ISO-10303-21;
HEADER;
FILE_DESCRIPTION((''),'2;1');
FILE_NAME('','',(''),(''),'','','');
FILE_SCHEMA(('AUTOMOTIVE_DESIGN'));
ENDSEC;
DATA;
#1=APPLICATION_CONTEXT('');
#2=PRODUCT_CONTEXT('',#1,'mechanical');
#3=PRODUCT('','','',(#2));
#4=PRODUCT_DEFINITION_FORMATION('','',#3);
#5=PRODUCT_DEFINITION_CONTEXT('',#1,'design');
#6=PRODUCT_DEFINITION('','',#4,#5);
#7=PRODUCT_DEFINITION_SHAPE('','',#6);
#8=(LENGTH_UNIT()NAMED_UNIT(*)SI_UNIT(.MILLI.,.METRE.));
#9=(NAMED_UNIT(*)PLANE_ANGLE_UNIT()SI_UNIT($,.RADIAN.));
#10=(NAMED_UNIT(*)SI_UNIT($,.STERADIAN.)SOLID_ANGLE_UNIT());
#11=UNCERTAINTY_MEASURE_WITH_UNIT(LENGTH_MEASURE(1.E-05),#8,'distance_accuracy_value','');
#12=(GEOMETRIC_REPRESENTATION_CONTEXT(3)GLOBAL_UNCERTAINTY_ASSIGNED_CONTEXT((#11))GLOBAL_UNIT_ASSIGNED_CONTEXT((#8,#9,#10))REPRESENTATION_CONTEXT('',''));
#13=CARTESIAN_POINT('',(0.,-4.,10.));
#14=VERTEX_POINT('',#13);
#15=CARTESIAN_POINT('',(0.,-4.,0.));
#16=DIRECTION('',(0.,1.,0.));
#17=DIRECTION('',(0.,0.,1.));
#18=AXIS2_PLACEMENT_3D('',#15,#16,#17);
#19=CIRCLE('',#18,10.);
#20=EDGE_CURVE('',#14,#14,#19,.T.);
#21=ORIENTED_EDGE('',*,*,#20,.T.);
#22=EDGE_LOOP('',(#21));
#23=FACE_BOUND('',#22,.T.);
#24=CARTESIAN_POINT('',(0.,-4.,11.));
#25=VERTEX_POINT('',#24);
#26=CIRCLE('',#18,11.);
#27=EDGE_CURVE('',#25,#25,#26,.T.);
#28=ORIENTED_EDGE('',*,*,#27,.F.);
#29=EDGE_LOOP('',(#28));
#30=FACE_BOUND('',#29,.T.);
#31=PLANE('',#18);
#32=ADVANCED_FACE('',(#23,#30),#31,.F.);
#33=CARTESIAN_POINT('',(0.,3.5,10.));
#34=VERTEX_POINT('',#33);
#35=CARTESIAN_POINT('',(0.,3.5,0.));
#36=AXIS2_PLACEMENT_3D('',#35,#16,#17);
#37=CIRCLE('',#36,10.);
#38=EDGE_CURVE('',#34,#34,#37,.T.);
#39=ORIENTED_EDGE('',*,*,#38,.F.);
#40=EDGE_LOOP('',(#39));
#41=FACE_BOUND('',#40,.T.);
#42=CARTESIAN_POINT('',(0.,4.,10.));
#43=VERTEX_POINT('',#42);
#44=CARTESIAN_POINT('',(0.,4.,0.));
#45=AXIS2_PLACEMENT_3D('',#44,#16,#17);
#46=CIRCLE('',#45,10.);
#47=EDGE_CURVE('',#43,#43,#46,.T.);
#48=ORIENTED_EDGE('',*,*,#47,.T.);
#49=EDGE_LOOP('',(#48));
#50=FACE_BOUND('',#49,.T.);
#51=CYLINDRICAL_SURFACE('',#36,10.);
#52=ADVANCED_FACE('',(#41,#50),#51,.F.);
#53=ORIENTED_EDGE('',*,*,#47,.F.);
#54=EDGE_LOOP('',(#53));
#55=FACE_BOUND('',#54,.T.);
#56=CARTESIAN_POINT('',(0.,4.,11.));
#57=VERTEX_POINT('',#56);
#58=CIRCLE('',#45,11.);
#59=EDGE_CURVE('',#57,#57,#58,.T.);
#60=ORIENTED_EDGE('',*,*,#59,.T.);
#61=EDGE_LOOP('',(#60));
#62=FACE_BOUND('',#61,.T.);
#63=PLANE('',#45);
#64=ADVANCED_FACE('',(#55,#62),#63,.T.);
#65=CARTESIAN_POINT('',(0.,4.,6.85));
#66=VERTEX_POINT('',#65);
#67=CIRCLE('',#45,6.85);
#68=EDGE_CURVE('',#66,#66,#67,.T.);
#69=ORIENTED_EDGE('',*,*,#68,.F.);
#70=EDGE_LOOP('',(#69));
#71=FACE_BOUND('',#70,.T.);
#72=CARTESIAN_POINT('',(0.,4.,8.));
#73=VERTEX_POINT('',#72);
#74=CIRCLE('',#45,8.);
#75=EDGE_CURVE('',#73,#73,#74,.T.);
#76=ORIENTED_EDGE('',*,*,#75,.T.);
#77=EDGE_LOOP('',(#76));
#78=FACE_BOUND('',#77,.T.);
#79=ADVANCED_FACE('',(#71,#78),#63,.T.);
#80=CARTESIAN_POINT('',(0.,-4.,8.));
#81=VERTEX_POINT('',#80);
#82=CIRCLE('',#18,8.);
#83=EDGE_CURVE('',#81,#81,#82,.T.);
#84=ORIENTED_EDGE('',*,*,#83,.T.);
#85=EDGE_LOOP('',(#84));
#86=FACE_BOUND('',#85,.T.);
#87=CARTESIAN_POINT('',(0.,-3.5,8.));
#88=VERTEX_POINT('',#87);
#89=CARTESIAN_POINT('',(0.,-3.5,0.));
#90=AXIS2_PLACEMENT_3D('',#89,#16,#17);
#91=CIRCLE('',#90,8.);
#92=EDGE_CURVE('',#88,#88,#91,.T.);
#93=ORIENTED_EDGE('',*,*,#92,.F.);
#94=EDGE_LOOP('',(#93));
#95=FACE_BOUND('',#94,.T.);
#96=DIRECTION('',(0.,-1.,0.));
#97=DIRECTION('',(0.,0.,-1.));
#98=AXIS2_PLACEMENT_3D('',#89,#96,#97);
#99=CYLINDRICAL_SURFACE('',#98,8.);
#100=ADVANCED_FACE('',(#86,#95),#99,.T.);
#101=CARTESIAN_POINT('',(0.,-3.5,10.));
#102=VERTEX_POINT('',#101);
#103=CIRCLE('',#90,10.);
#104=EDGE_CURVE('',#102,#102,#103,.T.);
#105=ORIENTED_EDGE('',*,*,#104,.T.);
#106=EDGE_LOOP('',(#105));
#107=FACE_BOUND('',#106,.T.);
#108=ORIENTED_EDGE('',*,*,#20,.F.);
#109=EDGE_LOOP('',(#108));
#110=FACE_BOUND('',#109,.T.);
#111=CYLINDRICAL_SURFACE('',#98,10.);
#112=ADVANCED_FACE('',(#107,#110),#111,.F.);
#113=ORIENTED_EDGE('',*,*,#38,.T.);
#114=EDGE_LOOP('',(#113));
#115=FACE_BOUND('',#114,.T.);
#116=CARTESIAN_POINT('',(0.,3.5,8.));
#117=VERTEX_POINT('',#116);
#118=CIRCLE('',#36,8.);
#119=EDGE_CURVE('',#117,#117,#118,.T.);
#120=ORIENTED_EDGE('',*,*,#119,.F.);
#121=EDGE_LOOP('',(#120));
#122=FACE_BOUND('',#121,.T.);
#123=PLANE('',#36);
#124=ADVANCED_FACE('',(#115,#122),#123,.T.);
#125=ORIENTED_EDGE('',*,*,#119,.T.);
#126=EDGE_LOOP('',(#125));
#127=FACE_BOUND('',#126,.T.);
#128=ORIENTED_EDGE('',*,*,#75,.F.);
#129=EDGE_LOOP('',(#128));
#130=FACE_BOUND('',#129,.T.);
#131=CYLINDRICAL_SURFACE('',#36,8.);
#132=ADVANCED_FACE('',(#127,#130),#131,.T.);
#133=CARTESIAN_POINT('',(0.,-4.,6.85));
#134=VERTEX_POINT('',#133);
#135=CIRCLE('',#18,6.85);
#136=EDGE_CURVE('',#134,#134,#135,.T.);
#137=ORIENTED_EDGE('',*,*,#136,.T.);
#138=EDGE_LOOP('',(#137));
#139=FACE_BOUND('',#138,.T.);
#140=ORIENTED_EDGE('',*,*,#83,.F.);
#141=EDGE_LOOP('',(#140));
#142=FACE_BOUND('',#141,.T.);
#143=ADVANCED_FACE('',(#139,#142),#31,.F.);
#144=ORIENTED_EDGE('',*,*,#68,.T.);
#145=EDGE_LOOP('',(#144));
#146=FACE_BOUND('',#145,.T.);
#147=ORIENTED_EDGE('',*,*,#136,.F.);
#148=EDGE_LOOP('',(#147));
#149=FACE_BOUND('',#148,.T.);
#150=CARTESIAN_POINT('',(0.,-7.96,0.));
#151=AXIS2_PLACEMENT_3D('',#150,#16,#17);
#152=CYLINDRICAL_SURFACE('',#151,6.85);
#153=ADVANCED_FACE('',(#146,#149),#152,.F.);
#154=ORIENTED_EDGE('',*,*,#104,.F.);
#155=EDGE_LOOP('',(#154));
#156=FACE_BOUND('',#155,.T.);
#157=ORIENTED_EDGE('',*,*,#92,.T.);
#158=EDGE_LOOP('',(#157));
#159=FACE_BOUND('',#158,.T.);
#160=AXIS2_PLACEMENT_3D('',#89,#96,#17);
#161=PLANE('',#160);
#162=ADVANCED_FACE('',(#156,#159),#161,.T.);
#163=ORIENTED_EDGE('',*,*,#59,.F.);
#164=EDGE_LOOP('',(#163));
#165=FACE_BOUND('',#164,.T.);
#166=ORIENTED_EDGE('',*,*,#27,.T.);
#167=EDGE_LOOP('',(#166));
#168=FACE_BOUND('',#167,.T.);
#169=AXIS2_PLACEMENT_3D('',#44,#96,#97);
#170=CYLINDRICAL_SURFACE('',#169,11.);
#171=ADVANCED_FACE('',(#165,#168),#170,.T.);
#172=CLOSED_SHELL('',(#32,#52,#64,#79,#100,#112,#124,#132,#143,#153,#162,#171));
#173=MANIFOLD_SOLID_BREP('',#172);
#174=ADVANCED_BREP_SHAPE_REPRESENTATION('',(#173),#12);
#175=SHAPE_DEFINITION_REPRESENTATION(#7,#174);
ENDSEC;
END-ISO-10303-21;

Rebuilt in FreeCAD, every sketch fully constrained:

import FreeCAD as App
import Part
import Sketcher
Q = App.Units.Quantity

doc = App.newDocument("Part")
body = doc.addObject("PartDesign::Body", "Body")

sketch1 = body.newObject("Sketcher::SketchObject", "Sketch")
sketch1.AttachmentSupport = (doc.getObject("XZ_Plane"), [""])
sketch1.MapMode = "FlatFace"
sketch1.addGeometry(Part.Circle(App.Vector(0, 0, 0), App.Vector(0, 0, 1), 11), False)
sketch1.addConstraint([
    Sketcher.Constraint("Coincident", 0, 3, -1, 1),
    Sketcher.Constraint("Diameter", 0, Q("22 mm")),
])
pad1 = body.newObject("PartDesign::Pad", "Pad")
pad1.Profile = sketch1
pad1.Length = 8
pad1.Midplane = True

sketch2 = body.newObject("Sketcher::SketchObject", "Sketch001")
sketch2.AttachmentSupport = (doc.getObject("XZ_Plane"), [""])
sketch2.MapMode = "FlatFace"
sketch2.AttachmentOffset = App.Placement(App.Vector(0, 0, -4), App.Rotation())
sketch2.addGeometry(Part.Circle(App.Vector(0, 0, 0), App.Vector(0, 0, 1), 7), False)
sketch2.addConstraint([
    Sketcher.Constraint("Coincident", 0, 3, -1, 1),
    Sketcher.Constraint("Diameter", 0, Q("13.7 mm")),
])
pocket1 = body.newObject("PartDesign::Pocket", "Pocket")
pocket1.Profile = sketch2
pocket1.Length = 11.96
pocket1.Reversed = True

sketch3 = body.newObject("Sketcher::SketchObject", "Sketch002")
sketch3.AttachmentSupport = (doc.getObject("XZ_Plane"), [""])
sketch3.MapMode = "FlatFace"
sketch3.AttachmentOffset = App.Placement(App.Vector(0, 0, -4), App.Rotation())
sketch3.addGeometry([
    Part.Circle(App.Vector(0, 0, 0), App.Vector(0, 0, 1), 10),
    Part.Circle(App.Vector(0, 0, 0), App.Vector(0, 0, 1), 8),
], False)
sketch3.addConstraint([
    Sketcher.Constraint("Coincident", 0, 3, -1, 1),
    Sketcher.Constraint("Coincident", 1, 3, -1, 1),
    Sketcher.Constraint("Diameter", 0, Q("20 mm")),
    Sketcher.Constraint("Diameter", 1, Q("16 mm")),
])
pocket2 = body.newObject("PartDesign::Pocket", "Pocket001")
pocket2.Profile = sketch3
pocket2.Length = 0.5
pocket2.Reversed = True
doc.recompute()

mirrored = body.newObject("PartDesign::Mirrored", "Mirrored")
mirrored.Originals = [pocket2]
mirrored.MirrorPlane = (doc.getObject("XZ_Plane"), [""])
body.Tip = mirrored

doc.recompute()
